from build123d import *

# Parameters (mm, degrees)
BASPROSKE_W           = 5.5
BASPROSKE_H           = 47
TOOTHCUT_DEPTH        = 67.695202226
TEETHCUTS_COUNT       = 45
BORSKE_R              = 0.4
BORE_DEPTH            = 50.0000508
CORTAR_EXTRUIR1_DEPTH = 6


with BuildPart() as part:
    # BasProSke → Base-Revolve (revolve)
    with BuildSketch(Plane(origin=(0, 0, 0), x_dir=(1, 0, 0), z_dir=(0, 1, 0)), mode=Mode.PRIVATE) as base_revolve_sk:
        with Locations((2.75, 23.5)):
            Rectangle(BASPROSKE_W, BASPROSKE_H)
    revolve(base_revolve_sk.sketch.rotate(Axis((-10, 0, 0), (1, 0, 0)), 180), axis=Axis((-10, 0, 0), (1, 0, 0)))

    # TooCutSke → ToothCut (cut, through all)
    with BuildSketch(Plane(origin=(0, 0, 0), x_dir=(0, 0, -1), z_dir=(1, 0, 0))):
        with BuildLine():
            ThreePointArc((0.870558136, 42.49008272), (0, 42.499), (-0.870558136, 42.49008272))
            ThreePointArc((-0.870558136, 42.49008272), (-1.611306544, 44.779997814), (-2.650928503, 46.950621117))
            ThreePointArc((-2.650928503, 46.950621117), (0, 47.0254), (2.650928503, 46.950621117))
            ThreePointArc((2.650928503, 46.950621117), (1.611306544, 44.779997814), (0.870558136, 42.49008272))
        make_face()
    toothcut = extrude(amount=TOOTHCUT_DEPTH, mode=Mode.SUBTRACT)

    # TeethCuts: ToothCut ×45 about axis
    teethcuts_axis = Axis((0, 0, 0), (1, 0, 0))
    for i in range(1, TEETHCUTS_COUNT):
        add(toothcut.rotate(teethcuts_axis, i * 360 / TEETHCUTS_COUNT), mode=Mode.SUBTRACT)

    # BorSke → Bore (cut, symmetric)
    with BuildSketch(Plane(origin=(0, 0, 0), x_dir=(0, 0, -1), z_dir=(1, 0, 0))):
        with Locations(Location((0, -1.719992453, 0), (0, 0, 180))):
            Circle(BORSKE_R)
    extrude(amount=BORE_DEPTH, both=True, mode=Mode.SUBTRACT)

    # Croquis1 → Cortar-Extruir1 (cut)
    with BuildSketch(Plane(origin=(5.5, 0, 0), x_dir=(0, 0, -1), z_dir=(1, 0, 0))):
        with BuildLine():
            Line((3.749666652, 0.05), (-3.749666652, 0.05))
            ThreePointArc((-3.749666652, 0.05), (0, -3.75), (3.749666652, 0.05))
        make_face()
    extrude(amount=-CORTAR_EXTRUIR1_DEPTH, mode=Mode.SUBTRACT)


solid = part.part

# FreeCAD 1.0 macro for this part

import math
import FreeCAD as App
import Part
import Sketcher

doc = App.newDocument("Part")
body = doc.addObject("PartDesign::Body", "Body")

sketch1 = body.newObject("Sketcher::SketchObject", "Sketch")
sketch1.AttachmentSupport = (doc.getObject("XZ_Plane"), [""])
sketch1.MapMode = "FlatFace"
sketch1.addGeometry([
    Part.LineSegment(App.Vector(0, -47, 0), App.Vector(0, 0, 0)),
    Part.LineSegment(App.Vector(0, 0, 0), App.Vector(6, 0, 0)),
    Part.LineSegment(App.Vector(6, 0, 0), App.Vector(6, -47, 0)),
    Part.LineSegment(App.Vector(6, -47, 0), App.Vector(0, -47, 0)),
], False)
sketch1.addConstraint([
    Sketcher.Constraint("Coincident", 0, 2, 1, 1),
    Sketcher.Constraint("Coincident", 1, 2, 2, 1),
    Sketcher.Constraint("Coincident", 2, 2, 3, 1),
    Sketcher.Constraint("Coincident", 3, 2, 0, 1),
    Sketcher.Constraint("Vertical", 0),
    Sketcher.Constraint("Horizontal", 1),
    Sketcher.Constraint("Vertical", 2),
    Sketcher.Constraint("Horizontal", 3),
    Sketcher.Constraint("Coincident", 0, 2, -1, 1),
    Sketcher.Constraint("DistanceY", 0, 1, 0, 2, 47.0),
    Sketcher.Constraint("DistanceX", 1, 1, 1, 2, 5.5),
])
revolution = body.newObject("PartDesign::Revolution", "Revolution")
revolution.Profile = sketch1
revolution.ReferenceAxis = (sketch1, ["H_Axis"])
revolution.Angle = 360

sketch2 = body.newObject("Sketcher::SketchObject", "Sketch001")
sketch2.AttachmentSupport = (doc.getObject("YZ_Plane"), [""])
sketch2.MapMode = "FlatFace"
sketch2.addGeometry([
    Part.ArcOfCircle(Part.Circle(App.Vector(0, 0, 0), App.Vector(0, 0, 1), 42.5), math.radians(-1.17), math.radians(1.17)),
    Part.ArcOfCircle(Part.Circle(App.Vector(38.1, -18.3, 0), App.Vector(0, 0, 1), 18), math.radians(60.57), math.radians(75.91)),
    Part.ArcOfCircle(Part.Circle(App.Vector(0, 0, 0), App.Vector(0, 0, 1), 47), math.radians(-3.23), math.radians(3.23)),
    Part.ArcOfCircle(Part.Circle(App.Vector(38.1, 18.3, 0), App.Vector(0, 0, 1), 18), math.radians(-75.91), math.radians(-60.57)),
], False)
sketch2.addConstraint([
    Sketcher.Constraint("Coincident", 0, 1, 1, 2),
    Sketcher.Constraint("Coincident", 1, 1, 2, 1),
    Sketcher.Constraint("Coincident", 2, 2, 3, 2),
    Sketcher.Constraint("Coincident", 3, 1, 0, 2),
    Sketcher.Constraint("Coincident", 0, 3, -1, 1),
    Sketcher.Constraint("Coincident", 2, 3, -1, 1),
    Sketcher.Constraint("Equal", 1, 3),
    Sketcher.Constraint("Symmetric", 1, 3, 3, 3, -1),
    Sketcher.Constraint("Radius", 1, 18.0),
    Sketcher.Constraint("Radius", 0, 42.499001),
    Sketcher.Constraint("Radius", 2, 47.0254),
    Sketcher.Constraint("DistanceX", -1, 1, 1, 3, 38.10739),
    Sketcher.Constraint("DistanceY", 1, 3, -1, 1, 18.328852),
])
pocket1 = body.newObject("PartDesign::Pocket", "Pocket")
pocket1.Profile = sketch2
pocket1.Type = "ThroughAll"
pocket1.Reversed = True
doc.recompute()

polarpattern = body.newObject("PartDesign::PolarPattern", "PolarPattern")
polarpattern.Originals = [pocket1]
polarpattern.Axis = (doc.getObject("X_Axis"), [""])
polarpattern.Angle = 360
polarpattern.Occurrences = 45
body.Tip = polarpattern

sketch3 = body.newObject("Sketcher::SketchObject", "Sketch002")
sketch3.AttachmentSupport = (doc.getObject("YZ_Plane"), [""])
sketch3.MapMode = "FlatFace"
sketch3.addGeometry(Part.Circle(App.Vector(-1.72, 0, 0), App.Vector(0, 0, 1), 0.4), False)
sketch3.addConstraint([
    Sketcher.Constraint("PointOnObject", 0, 3, -1),
    Sketcher.Constraint("Diameter", 0, 0.8),
    Sketcher.Constraint("DistanceX", 0, 3, -1, 1, 1.719992),
])
pocket2 = body.newObject("PartDesign::Pocket", "Pocket001")
pocket2.Profile = sketch3
pocket2.Length = 100.000102
pocket2.Midplane = True

sketch4 = body.newObject("Sketcher::SketchObject", "Sketch003")
sketch4.AttachmentSupport = (doc.getObject("YZ_Plane"), [""])
sketch4.MapMode = "FlatFace"
sketch4.AttachmentOffset = App.Placement(App.Vector(0, 0, 5.5), App.Rotation())
sketch4.addGeometry([
    Part.LineSegment(App.Vector(0.1, -3.7, 0), App.Vector(0.1, 3.7, 0)),
    Part.ArcOfCircle(Part.Circle(App.Vector(0, 0, 0), App.Vector(0, 0, 1), 3.8), math.radians(89), math.radians(271)),
], False)
sketch4.addConstraint([
    Sketcher.Constraint("Coincident", 0, 1, 1, 2),
    Sketcher.Constraint("Coincident", 1, 1, 0, 2),
    Sketcher.Constraint("Vertical", 0),
    Sketcher.Constraint("Coincident", 1, 3, -1, 1),
    Sketcher.Constraint("Radius", 1, 3.75),
    Sketcher.Constraint("DistanceX", -1, 1, 0, 1, 0.05),
])
pocket3 = body.newObject("PartDesign::Pocket", "Pocket002")
pocket3.Profile = sketch4
pocket3.Length = 6

doc.recompute()
